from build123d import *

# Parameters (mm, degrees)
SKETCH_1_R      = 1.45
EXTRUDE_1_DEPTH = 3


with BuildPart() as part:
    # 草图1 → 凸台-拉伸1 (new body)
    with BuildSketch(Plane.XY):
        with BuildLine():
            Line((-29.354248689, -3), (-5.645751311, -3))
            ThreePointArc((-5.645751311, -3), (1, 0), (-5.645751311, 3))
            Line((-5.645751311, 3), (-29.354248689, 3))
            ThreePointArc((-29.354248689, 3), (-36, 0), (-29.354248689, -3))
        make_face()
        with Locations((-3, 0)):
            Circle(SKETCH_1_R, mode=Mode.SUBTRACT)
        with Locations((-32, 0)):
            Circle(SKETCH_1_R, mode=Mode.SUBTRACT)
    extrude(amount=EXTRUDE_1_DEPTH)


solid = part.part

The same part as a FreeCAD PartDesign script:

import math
import FreeCAD as App
import Part
import Sketcher

V = App.Vector

doc = App.newDocument("Part")
body = doc.addObject("PartDesign::Body", "Body")

# Sketch on XY plane
sketch1 = doc.addObject("Sketcher::SketchObject", "Sketch")
body.addObject(sketch1)
sketch1.AttachmentSupport = (doc.XY_Plane, [""])
sketch1.MapMode = "FlatFace"
sketch1.addGeometry(Part.LineSegment(V(-29.4, -3, 0), V(-5.6, -3, 0)), False)
sketch1.addGeometry(Part.ArcOfCircle(Part.Circle(V(-3, 0, 0), V(0, 0, 1), 4), math.radians(-131), math.radians(131)), False)
sketch1.addGeometry(Part.LineSegment(V(-5.6, 3, 0), V(-29.4, 3, 0)), False)
sketch1.addGeometry(Part.ArcOfCircle(Part.Circle(V(-32, 0, 0), V(0, 0, 1), 4), math.radians(49), math.radians(311)), False)
sketch1.addGeometry(Part.Circle(V(-32, 0, 0), V(0, 0, 1), 1.4), False)
sketch1.addGeometry(Part.Circle(V(-3, 0, 0), V(0, 0, 1), 1.4), False)
sketch1.addConstraint(Sketcher.Constraint("Coincident", 0, 2, 1, 1))
sketch1.addConstraint(Sketcher.Constraint("Coincident", 1, 2, 2, 1))
sketch1.addConstraint(Sketcher.Constraint("Coincident", 2, 2, 3, 1))
sketch1.addConstraint(Sketcher.Constraint("Coincident", 3, 2, 0, 1))
sketch1.addConstraint(Sketcher.Constraint("Horizontal", 0))
sketch1.addConstraint(Sketcher.Constraint("Horizontal", 2))
sketch1.addConstraint(Sketcher.Constraint("Coincident", 4, 3, 3, 3))
sketch1.addConstraint(Sketcher.Constraint("Coincident", 5, 3, 1, 3))
sketch1.addConstraint(Sketcher.Constraint("Equal", 1, 3))
sketch1.addConstraint(Sketcher.Constraint("Equal", 4, 5))
sketch1.addConstraint(Sketcher.Constraint("Symmetric", 0, 2, 1, 2, -1))
sketch1.addConstraint(Sketcher.Constraint("PointOnObject", 3, 3, -1))
sketch1.addConstraint(Sketcher.Constraint("Radius", 1, 4.0))
sketch1.addConstraint(Sketcher.Constraint("Diameter", 4, 2.9))
sketch1.addConstraint(Sketcher.Constraint("DistanceX", 1, 3, -1, 1, 3.0))
sketch1.addConstraint(Sketcher.Constraint("DistanceX", 3, 3, -1, 1, 32.0))
sketch1.addConstraint(Sketcher.Constraint("DistanceY", 0, 2, -1, 1, 3.0))
pad1 = doc.addObject("PartDesign::Pad", "Pad")
body.addObject(pad1)
pad1.Profile = sketch1
pad1.Length = 3

doc.recompute()
